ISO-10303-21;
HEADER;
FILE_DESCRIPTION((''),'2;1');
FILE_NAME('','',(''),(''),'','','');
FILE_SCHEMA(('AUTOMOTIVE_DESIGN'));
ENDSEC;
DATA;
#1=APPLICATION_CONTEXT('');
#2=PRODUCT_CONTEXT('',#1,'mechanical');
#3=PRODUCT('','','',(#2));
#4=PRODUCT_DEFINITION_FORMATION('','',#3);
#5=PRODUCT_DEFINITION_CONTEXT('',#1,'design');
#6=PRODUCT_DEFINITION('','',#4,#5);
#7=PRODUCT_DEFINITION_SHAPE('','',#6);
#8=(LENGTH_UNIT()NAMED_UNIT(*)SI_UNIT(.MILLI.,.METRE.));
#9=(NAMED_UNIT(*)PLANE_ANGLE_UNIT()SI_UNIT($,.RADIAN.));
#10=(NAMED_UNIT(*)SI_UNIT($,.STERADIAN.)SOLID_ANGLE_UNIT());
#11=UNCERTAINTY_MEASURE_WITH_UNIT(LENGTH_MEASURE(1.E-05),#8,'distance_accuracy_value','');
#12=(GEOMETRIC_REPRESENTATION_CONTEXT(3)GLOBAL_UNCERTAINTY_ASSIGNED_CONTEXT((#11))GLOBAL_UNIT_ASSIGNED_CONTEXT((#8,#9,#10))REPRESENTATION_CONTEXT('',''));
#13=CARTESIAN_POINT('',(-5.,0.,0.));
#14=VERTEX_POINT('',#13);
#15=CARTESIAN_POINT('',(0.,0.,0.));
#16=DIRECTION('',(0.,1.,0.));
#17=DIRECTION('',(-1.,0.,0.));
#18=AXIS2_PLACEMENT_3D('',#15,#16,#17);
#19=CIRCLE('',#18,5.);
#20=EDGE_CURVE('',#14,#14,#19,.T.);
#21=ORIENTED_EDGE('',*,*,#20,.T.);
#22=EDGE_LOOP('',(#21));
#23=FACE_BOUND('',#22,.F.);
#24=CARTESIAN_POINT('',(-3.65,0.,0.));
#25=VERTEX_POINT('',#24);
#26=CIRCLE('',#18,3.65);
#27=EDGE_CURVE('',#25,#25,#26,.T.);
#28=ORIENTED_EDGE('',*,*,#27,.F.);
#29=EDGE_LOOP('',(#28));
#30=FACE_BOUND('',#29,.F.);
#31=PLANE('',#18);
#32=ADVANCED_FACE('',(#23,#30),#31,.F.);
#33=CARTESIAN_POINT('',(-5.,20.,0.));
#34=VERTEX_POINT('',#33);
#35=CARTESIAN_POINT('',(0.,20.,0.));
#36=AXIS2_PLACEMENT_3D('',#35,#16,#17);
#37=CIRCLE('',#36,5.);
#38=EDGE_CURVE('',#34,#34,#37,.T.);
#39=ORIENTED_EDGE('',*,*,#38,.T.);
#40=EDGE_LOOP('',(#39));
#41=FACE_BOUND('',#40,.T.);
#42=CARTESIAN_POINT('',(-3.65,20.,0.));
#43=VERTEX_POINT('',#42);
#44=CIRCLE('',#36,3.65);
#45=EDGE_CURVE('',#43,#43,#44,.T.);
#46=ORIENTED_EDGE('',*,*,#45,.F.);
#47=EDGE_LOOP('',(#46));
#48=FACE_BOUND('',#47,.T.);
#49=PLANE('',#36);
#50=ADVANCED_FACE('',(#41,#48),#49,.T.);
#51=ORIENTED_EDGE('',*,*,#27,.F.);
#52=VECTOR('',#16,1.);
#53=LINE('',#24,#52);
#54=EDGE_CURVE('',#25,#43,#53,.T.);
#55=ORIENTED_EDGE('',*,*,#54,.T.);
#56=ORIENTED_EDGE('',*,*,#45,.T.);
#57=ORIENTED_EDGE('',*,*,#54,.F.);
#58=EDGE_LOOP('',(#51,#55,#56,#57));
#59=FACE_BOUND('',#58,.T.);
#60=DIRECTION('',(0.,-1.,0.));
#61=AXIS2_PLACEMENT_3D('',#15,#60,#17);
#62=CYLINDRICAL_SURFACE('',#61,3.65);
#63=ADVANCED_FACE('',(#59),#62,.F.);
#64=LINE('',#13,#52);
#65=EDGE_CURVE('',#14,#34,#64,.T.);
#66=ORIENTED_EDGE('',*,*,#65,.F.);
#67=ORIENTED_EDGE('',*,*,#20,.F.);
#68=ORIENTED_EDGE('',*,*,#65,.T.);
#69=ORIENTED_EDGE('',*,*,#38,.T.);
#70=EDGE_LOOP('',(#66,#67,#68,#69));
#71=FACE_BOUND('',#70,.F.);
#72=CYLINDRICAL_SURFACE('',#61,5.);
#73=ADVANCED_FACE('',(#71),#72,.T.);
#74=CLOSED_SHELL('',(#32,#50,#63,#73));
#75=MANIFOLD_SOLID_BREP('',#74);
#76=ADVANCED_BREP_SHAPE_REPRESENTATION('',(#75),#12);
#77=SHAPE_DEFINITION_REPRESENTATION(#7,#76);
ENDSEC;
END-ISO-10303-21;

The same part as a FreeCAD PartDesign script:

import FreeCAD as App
import Part
import Sketcher

V = App.Vector
Q = App.Units.Quantity

doc = App.newDocument("Part")
body = doc.addObject("PartDesign::Body", "Body")

# Sketch on XZ plane
sketch1 = body.newObject("Sketcher::SketchObject", "Sketch")
sketch1.AttachmentSupport = (doc.getObject("XZ_Plane"), [""])
sketch1.MapMode = "FlatFace"
sketch1.addGeometry([
    Part.Circle(V(0, 0, 0), V(0, 0, 1), 5),
    Part.Circle(V(0, 0, 0), V(0, 0, 1), 3.6),
], False)
sketch1.addConstraint([
    Sketcher.Constraint("Coincident", 0, 3, -1, 1),
    Sketcher.Constraint("Coincident", 1, 3, -1, 1),
    Sketcher.Constraint("Diameter", 0, Q("10 mm")),
    Sketcher.Constraint("Diameter", 1, Q("7.3 mm")),
])
pad1 = body.newObject("PartDesign::Pad", "Pad")
pad1.Profile = sketch1
pad1.Length = 20
pad1.Reversed = True

doc.recompute()
